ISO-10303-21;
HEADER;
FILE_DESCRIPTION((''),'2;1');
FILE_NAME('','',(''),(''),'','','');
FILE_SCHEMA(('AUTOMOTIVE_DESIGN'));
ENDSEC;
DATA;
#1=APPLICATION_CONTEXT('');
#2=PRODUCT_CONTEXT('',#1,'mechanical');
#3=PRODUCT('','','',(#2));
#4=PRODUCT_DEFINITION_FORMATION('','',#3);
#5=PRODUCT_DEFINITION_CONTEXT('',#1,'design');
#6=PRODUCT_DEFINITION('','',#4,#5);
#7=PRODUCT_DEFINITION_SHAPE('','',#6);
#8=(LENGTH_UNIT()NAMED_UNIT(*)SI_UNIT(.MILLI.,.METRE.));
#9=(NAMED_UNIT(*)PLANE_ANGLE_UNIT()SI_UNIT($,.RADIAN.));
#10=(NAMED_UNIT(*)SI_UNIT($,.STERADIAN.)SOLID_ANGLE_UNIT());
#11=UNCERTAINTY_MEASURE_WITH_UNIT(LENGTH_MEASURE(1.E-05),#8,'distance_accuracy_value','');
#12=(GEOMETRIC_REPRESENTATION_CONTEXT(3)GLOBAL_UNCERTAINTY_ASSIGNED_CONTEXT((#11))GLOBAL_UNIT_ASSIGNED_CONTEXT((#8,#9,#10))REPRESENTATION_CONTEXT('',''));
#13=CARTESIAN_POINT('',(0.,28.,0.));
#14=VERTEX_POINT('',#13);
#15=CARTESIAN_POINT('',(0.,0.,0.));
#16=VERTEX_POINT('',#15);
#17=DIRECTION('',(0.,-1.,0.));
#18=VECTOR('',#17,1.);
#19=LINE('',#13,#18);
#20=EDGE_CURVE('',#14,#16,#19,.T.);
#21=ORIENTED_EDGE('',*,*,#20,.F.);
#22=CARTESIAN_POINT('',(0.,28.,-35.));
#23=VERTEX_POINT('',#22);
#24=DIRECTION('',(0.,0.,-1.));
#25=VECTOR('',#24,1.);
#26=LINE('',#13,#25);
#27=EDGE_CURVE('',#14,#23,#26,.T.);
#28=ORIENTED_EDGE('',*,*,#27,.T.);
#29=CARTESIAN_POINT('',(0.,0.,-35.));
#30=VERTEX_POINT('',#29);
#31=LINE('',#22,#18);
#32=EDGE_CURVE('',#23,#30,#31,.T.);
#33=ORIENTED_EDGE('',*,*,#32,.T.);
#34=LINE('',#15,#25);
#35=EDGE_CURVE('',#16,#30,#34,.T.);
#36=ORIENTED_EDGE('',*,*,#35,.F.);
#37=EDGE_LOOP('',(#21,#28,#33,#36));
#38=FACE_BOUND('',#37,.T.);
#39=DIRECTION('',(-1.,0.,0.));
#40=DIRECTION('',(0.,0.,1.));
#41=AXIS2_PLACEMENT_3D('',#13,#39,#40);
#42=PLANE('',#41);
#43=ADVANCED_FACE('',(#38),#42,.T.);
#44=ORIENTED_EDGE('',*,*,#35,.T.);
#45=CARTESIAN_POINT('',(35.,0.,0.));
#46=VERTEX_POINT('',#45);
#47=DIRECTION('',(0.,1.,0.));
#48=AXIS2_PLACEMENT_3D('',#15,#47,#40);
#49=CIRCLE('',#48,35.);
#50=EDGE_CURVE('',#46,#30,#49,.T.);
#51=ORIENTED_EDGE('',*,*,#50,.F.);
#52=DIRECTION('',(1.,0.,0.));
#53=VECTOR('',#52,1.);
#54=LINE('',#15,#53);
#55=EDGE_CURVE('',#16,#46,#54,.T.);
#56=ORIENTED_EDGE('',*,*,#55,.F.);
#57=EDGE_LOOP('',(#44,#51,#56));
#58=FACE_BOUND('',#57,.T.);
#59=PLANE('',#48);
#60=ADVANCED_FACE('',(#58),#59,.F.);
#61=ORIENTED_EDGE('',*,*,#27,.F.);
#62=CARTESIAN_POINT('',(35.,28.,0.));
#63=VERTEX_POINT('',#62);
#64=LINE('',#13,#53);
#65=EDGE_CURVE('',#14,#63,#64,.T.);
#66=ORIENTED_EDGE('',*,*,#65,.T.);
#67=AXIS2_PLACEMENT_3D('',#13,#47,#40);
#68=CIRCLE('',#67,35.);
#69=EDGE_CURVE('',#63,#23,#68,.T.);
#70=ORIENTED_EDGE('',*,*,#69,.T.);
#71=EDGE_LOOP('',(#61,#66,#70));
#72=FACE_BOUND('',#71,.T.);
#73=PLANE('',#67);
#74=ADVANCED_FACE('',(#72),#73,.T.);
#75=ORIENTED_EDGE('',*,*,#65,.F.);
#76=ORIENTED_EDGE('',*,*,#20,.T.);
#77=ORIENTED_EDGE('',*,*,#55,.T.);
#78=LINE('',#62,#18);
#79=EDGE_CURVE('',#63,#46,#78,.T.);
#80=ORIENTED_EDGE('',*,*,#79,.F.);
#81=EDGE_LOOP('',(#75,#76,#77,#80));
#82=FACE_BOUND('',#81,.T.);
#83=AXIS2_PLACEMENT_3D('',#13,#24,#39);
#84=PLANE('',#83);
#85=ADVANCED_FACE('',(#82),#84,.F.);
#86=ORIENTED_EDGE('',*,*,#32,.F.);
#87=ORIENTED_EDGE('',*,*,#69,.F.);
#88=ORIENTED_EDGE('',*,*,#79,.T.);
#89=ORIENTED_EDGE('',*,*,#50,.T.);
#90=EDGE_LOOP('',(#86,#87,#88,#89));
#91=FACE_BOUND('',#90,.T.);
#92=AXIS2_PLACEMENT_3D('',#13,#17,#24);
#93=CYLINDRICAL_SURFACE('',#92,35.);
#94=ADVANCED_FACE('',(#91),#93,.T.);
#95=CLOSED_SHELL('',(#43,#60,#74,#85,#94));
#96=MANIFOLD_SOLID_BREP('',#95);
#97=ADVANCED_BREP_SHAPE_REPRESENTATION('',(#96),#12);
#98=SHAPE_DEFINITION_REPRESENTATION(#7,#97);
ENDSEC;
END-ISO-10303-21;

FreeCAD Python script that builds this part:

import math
import FreeCAD as App
import Part
import Sketcher
Q = App.Units.Quantity

doc = App.newDocument("Part")
body = doc.addObject("PartDesign::Body", "Body")

# Sketch on XZ plane
sketch1 = body.newObject("Sketcher::SketchObject", "Sketch")
sketch1.AttachmentSupport = (doc.getObject("XZ_Plane"), [""])
sketch1.MapMode = "FlatFace"
sketch1.addGeometry([
    Part.LineSegment(App.Vector(0, -35, 0), App.Vector(0, 0, 0)),
    Part.LineSegment(App.Vector(0, 0, 0), App.Vector(35, 0, 0)),
    Part.ArcOfCircle(Part.Circle(App.Vector(0, 0, 0), App.Vector(0, 0, 1), 35), math.radians(-90), math.radians(0)),
], False)
sketch1.addConstraint([
    Sketcher.Constraint("Coincident", 0, 2, 1, 1),
    Sketcher.Constraint("Coincident", 1, 2, 2, 2),
    Sketcher.Constraint("Coincident", 2, 1, 0, 1),
    Sketcher.Constraint("Vertical", 0),
    Sketcher.Constraint("Horizontal", 1),
    Sketcher.Constraint("Coincident", 2, 3, -1, 1),
    Sketcher.Constraint("Coincident", 0, 2, -1, 1),
    Sketcher.Constraint("Radius", 2, Q("35 mm")),
])
pad1 = body.newObject("PartDesign::Pad", "Pad")
pad1.Profile = sketch1
pad1.Length = 28
pad1.Reversed = True

doc.recompute()
